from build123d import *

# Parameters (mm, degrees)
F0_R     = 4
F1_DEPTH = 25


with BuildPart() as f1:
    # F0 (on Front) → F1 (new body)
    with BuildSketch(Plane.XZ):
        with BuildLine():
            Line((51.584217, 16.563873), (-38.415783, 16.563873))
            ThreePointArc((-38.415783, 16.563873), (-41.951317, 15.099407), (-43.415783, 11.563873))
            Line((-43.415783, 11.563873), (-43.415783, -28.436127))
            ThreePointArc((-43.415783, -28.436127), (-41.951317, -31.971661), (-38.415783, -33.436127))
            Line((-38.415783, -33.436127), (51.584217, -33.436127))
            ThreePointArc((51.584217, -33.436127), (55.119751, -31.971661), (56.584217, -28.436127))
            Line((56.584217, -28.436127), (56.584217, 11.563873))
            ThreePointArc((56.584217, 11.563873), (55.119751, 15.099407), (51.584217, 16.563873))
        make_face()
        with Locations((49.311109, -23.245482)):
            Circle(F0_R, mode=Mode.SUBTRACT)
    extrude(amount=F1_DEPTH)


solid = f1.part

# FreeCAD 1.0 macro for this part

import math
import FreeCAD as App
import Part
import Sketcher

V = App.Vector

doc = App.newDocument("Part")
body = doc.addObject("PartDesign::Body", "Body")

# Sketch on XZ plane
sketch1 = body.newObject("Sketcher::SketchObject", "Sketch")
sketch1.AttachmentSupport = (doc.getObject("XZ_Plane"), [""])
sketch1.MapMode = "FlatFace"
sketch1.addGeometry([
    Part.LineSegment(V(51.584217, 16.563873, 0), V(-38.415783, 16.563873, 0)),  # 0
    Part.ArcOfCircle(Part.Circle(V(-38.415783, 11.563873, 0), V(0, 0, 1), 5), math.radians(89.999996), math.radians(180.000004)),  # 1
    Part.LineSegment(V(-43.415783, 11.563873, 0), V(-43.415783, -28.436127, 0)),  # 2
    Part.ArcOfCircle(Part.Circle(V(-38.415783, -28.436127, 0), V(0, 0, 1), 5), math.radians(179.999996), math.radians(270.000004)),  # 3
    Part.LineSegment(V(-38.415783, -33.436127, 0), V(51.584217, -33.436127, 0)),  # 4
    Part.ArcOfCircle(Part.Circle(V(51.584217, -28.436127, 0), V(0, 0, 1), 5), math.radians(-90.000004), math.radians(0.000004)),  # 5
    Part.LineSegment(V(56.584217, -28.436127, 0), V(56.584217, 11.563873, 0)),  # 6
    Part.ArcOfCircle(Part.Circle(V(51.584217, 11.563873, 0), V(0, 0, 1), 5), math.radians(-0.000004), math.radians(90.000004)),  # 7
    Part.Circle(V(49.311109, -23.245482, 0), V(0, 0, 1), 4),  # 8
], False)
sketch1.addConstraint([
    Sketcher.Constraint("Tangent", 0, 2, 1, 1),
    Sketcher.Constraint("Tangent", 1, 2, 2, 1),
    Sketcher.Constraint("Tangent", 2, 2, 3, 1),
    Sketcher.Constraint("Tangent", 3, 2, 4, 1),
    Sketcher.Constraint("Tangent", 4, 2, 5, 1),
    Sketcher.Constraint("Tangent", 5, 2, 6, 1),
    Sketcher.Constraint("Tangent", 6, 2, 7, 1),
    Sketcher.Constraint("Tangent", 7, 2, 0, 1),
    Sketcher.Constraint("Horizontal", 0),
    Sketcher.Constraint("Vertical", 2),
    Sketcher.Constraint("Horizontal", 4),
    Sketcher.Constraint("Vertical", 6),
    Sketcher.Constraint("Equal", 1, 3),
    Sketcher.Constraint("Equal", 3, 5),
    Sketcher.Constraint("Equal", 5, 7),
    Sketcher.Constraint("Diameter", 8, 8.0),
    Sketcher.Constraint("Radius", 1, 5.0),
    Sketcher.Constraint("DistanceX", 0, 2, 0, 1, 90.0),
    Sketcher.Constraint("DistanceY", 2, 2, 2, 1, 40.0),
    Sketcher.Constraint("DistanceX", -1, 1, 8, 3, 49.311109),
    Sketcher.Constraint("DistanceY", 8, 3, -1, 1, 23.245482),
    Sketcher.Constraint("DistanceX", 8, 3, 5, 3, 2.273108),
    Sketcher.Constraint("DistanceY", -1, 1, 1, 3, 11.563873),
])
pad1 = body.newObject("PartDesign::Pad", "Pad")
pad1.Profile = sketch1
pad1.Length = 25

doc.recompute()
